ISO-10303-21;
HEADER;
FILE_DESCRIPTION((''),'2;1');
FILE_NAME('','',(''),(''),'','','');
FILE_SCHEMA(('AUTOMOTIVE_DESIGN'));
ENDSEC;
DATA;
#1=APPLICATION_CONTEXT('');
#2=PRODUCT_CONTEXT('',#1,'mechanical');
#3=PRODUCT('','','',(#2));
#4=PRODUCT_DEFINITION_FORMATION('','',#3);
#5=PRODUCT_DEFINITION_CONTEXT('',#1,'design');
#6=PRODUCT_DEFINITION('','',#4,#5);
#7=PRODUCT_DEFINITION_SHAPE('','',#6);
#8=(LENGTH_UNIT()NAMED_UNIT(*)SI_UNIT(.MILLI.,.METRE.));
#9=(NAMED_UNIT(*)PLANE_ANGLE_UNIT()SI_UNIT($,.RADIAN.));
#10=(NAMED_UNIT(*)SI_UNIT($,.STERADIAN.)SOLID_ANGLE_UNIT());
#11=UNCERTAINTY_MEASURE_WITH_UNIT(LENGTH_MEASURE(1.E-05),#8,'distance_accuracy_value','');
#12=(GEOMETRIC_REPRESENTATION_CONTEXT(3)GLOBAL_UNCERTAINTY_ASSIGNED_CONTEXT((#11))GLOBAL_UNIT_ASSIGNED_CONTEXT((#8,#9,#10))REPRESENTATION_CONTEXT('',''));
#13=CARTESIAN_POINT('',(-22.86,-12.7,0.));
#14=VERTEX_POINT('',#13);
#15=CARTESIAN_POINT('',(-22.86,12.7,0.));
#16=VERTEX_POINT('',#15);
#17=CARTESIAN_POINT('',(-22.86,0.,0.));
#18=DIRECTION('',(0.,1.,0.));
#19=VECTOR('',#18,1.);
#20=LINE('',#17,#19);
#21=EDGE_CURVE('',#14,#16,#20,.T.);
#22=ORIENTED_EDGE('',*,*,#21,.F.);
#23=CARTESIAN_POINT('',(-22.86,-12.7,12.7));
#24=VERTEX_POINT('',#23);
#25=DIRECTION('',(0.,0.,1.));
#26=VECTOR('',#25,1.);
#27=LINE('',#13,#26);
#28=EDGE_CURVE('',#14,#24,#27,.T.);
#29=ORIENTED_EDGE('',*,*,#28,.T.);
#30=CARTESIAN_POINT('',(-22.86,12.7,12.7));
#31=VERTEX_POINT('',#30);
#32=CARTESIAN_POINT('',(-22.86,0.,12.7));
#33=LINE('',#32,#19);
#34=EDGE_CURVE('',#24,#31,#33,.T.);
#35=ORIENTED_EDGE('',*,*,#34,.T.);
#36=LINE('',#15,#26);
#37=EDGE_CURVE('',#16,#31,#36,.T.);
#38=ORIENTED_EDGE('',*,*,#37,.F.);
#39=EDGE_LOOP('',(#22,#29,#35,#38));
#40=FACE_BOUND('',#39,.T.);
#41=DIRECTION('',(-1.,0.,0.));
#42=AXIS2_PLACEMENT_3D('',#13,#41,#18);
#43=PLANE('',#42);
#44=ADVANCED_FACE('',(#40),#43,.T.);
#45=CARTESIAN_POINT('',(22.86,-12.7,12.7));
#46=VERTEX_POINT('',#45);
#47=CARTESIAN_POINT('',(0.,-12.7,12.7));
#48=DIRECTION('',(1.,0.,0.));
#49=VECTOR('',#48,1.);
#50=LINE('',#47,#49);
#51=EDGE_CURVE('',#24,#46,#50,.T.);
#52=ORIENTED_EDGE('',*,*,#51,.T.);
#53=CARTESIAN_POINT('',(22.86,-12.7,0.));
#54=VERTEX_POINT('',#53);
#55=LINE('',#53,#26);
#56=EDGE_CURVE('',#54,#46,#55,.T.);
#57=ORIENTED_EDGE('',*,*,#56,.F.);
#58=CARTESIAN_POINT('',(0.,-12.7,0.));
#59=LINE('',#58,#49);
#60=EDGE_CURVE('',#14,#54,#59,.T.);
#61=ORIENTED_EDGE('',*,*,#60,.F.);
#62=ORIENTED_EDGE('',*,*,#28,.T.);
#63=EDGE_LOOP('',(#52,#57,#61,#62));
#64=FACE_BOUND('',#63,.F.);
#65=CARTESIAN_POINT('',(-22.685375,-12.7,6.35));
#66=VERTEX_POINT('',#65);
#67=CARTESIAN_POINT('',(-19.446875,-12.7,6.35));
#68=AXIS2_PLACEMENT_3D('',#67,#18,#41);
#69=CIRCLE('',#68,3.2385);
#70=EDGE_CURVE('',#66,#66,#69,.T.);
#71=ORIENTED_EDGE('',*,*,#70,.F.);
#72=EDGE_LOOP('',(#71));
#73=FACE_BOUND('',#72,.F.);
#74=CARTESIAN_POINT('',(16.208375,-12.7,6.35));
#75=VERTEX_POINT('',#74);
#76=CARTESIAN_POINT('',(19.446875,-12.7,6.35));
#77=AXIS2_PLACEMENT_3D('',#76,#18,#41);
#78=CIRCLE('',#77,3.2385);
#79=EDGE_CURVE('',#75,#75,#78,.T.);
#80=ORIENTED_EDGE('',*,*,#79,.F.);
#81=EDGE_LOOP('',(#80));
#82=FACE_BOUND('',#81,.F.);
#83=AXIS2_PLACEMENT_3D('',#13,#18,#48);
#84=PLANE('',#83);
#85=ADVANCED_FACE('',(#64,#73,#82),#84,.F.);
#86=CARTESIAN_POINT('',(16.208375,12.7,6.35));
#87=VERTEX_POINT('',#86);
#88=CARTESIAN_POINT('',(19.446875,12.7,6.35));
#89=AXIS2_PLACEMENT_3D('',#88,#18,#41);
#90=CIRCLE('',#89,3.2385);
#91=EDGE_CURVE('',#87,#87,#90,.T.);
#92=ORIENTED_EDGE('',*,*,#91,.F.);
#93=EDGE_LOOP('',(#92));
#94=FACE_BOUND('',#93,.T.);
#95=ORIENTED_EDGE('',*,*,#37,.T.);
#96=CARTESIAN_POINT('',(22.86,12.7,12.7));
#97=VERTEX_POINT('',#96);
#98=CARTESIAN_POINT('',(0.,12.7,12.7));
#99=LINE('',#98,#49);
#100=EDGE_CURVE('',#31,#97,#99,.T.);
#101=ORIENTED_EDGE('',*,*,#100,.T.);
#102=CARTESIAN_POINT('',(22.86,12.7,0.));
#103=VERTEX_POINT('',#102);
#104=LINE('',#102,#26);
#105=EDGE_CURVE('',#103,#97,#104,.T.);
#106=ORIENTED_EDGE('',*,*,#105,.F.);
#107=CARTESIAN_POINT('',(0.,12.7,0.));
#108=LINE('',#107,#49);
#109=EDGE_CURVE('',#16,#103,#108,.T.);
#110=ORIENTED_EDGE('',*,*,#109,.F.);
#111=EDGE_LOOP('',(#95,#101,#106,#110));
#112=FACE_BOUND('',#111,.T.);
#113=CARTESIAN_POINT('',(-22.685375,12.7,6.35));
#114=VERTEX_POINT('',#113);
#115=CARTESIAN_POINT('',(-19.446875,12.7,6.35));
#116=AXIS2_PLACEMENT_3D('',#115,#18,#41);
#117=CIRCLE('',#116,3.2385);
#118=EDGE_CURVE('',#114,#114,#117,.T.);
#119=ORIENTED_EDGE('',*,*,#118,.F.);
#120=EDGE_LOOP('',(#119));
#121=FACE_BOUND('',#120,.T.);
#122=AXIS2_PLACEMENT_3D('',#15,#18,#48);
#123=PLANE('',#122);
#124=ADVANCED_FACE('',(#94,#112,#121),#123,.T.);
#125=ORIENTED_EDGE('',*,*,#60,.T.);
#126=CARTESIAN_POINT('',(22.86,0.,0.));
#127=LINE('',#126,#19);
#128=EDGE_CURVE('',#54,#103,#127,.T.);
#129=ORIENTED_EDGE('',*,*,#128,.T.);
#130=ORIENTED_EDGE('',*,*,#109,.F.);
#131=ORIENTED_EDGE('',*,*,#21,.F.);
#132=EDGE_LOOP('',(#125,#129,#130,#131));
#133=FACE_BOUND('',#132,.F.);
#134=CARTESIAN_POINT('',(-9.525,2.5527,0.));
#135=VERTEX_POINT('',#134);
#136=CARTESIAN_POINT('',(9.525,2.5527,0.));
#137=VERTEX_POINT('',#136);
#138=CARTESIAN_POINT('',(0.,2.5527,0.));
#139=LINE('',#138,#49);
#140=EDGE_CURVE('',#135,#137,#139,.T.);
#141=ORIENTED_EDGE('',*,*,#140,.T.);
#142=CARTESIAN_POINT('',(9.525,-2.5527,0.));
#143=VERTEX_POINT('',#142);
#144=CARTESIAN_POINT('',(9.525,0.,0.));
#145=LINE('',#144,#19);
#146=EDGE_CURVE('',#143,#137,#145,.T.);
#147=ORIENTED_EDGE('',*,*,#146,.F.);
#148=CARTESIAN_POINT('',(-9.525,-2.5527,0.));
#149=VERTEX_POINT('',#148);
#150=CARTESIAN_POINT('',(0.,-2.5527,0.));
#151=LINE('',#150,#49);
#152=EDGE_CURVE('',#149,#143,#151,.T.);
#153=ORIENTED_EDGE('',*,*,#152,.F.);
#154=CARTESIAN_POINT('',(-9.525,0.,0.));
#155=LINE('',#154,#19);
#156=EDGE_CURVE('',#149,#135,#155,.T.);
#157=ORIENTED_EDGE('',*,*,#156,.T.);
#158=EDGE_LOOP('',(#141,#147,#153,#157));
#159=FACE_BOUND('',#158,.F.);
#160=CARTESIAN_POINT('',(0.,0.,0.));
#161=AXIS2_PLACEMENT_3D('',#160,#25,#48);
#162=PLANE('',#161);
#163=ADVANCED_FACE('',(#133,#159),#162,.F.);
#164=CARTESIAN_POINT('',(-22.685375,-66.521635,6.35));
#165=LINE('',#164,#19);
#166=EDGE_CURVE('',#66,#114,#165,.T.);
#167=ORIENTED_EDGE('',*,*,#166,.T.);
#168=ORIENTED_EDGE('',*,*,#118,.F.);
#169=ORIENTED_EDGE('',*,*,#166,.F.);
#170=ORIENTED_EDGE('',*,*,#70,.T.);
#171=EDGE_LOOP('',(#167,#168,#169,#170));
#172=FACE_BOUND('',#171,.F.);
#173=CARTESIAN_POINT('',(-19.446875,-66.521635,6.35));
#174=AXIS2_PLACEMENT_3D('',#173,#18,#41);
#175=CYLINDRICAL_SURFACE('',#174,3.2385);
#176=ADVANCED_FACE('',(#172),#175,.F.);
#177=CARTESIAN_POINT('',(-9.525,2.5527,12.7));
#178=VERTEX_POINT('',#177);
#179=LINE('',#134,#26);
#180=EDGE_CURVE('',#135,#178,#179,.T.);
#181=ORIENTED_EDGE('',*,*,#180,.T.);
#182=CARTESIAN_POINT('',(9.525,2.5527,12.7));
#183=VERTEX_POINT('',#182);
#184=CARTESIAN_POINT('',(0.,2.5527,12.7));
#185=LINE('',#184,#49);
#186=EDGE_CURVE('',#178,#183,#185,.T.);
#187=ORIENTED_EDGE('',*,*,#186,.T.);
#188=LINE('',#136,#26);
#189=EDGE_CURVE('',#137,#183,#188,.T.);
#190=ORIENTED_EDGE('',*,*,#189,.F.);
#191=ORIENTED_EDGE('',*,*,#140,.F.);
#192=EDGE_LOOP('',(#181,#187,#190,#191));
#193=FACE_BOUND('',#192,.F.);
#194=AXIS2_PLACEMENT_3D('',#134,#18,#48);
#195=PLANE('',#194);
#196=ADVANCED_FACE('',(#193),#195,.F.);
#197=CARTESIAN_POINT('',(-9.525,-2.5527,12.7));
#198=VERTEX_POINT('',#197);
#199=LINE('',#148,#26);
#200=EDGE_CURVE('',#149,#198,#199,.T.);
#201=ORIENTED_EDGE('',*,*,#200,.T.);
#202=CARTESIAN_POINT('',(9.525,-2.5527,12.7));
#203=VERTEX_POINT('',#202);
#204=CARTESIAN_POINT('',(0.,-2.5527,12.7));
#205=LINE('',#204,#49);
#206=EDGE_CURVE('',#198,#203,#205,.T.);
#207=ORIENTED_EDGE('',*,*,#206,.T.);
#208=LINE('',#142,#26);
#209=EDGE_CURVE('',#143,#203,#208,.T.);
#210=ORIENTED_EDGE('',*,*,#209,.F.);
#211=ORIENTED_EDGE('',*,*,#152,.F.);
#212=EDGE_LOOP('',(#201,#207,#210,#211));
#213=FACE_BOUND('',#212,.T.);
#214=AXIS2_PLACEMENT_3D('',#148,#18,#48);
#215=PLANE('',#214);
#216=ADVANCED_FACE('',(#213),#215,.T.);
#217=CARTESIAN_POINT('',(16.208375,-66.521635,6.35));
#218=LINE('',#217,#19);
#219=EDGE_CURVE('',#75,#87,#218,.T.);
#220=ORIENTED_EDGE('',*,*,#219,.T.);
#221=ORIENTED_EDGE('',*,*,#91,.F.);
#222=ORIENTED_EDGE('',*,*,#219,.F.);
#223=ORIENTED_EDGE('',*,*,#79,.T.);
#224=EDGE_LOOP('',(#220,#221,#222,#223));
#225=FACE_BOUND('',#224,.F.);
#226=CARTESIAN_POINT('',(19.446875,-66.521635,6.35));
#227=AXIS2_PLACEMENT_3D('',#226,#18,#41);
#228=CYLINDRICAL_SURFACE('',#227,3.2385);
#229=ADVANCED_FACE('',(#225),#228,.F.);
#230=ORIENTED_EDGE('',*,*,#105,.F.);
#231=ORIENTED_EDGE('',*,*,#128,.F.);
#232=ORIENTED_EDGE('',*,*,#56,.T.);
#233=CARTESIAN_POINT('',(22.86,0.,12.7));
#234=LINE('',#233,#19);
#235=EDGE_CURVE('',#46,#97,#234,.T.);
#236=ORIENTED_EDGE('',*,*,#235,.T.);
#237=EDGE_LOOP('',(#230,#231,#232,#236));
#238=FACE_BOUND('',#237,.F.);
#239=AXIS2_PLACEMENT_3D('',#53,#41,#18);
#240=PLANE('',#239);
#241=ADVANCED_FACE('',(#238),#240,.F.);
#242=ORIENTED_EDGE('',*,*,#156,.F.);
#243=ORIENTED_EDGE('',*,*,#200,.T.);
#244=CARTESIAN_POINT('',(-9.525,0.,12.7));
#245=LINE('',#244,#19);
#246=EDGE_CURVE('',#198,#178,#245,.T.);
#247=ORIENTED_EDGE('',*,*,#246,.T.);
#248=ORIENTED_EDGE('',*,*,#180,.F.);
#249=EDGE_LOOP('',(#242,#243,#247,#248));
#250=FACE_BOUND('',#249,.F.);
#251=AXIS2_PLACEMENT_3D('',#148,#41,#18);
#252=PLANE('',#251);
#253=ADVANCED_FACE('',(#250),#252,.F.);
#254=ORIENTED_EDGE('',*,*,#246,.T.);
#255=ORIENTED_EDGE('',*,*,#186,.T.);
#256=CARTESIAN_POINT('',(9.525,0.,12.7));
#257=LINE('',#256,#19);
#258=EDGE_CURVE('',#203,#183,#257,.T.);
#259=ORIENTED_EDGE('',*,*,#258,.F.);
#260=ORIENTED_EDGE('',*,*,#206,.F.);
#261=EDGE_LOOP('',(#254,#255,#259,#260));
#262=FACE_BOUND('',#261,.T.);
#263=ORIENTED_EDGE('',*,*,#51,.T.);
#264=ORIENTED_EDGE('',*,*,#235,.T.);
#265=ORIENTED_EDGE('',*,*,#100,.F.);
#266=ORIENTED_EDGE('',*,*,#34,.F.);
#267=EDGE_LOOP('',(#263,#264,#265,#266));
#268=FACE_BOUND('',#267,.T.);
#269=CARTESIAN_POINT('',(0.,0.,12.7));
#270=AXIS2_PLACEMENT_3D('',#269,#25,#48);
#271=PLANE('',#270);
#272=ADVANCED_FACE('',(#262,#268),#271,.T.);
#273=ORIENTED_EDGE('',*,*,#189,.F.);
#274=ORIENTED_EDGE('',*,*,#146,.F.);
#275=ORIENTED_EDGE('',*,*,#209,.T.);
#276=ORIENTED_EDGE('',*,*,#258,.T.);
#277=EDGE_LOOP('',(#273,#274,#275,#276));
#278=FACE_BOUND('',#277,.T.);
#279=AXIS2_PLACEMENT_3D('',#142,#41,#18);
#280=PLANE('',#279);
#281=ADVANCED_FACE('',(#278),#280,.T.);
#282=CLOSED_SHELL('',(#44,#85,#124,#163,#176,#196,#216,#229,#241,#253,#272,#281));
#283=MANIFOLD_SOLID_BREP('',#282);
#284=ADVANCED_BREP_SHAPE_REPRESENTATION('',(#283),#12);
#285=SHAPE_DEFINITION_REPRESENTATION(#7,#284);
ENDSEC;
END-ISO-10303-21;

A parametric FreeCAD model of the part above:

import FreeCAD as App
import Part
import Sketcher
from FreeCAD import Vector
Q = App.Units.Quantity

doc = App.newDocument("Part")
body = doc.addObject("PartDesign::Body", "Body")

# Sketch on XY plane
sketch1 = body.newObject("Sketcher::SketchObject", "Sketch")
sketch1.AttachmentSupport = (doc.getObject("XY_Plane"), [""])
sketch1.MapMode = "FlatFace"
sketch1.addGeometry([
    Part.LineSegment(Vector(-22.86, 12.7, 0), Vector(-22.86, -12.7, 0)),  # 0
    Part.LineSegment(Vector(-22.86, -12.7, 0), Vector(22.86, -12.7, 0)),  # 1
    Part.LineSegment(Vector(22.86, -12.7, 0), Vector(22.86, 12.7, 0)),  # 2
    Part.LineSegment(Vector(22.86, 12.7, 0), Vector(-22.86, 12.7, 0)),  # 3
    Part.LineSegment(Vector(9.525, -2.5527, 0), Vector(-9.525, -2.5527, 0)),  # 4
    Part.LineSegment(Vector(-9.525, -2.5527, 0), Vector(-9.525, 2.5527, 0)),  # 5
    Part.LineSegment(Vector(-9.525, 2.5527, 0), Vector(9.525, 2.5527, 0)),  # 6
    Part.LineSegment(Vector(9.525, 2.5527, 0), Vector(9.525, -2.5527, 0)),  # 7
], False)
sketch1.addConstraint([
    Sketcher.Constraint("Coincident", 0, 2, 1, 1),
    Sketcher.Constraint("Coincident", 1, 2, 2, 1),
    Sketcher.Constraint("Coincident", 2, 2, 3, 1),
    Sketcher.Constraint("Coincident", 3, 2, 0, 1),
    Sketcher.Constraint("Coincident", 4, 2, 5, 1),
    Sketcher.Constraint("Coincident", 5, 2, 6, 1),
    Sketcher.Constraint("Coincident", 6, 2, 7, 1),
    Sketcher.Constraint("Coincident", 7, 2, 4, 1),
    Sketcher.Constraint("Vertical", 0),
    Sketcher.Constraint("Horizontal", 1),
    Sketcher.Constraint("Vertical", 2),
    Sketcher.Constraint("Horizontal", 3),
    Sketcher.Constraint("Horizontal", 4),
    Sketcher.Constraint("Vertical", 5),
    Sketcher.Constraint("Horizontal", 6),
    Sketcher.Constraint("Vertical", 7),
    Sketcher.Constraint("Symmetric", 0, 2, 2, 2, -1, 1),
    Sketcher.Constraint("Symmetric", 4, 2, 6, 2, -1, 1),
    Sketcher.Constraint("DistanceY", 0, 2, 0, 1, Q("1 in")),
    Sketcher.Constraint("DistanceX", 1, 1, 1, 2, Q("1.8 in")),
    Sketcher.Constraint("DistanceX", 4, 2, 4, 1, Q("0.75 in")),
    Sketcher.Constraint("DistanceY", 5, 1, 5, 2, Q("0.201 in")),
])
pad1 = body.newObject("PartDesign::Pad", "Pad")
pad1.Profile = sketch1
pad1.Length = Q("0.5 in")

# Sketch on XZ plane
sketch2 = body.newObject("Sketcher::SketchObject", "Sketch001")
sketch2.AttachmentSupport = (doc.getObject("XZ_Plane"), [""])
sketch2.MapMode = "FlatFace"
sketch2.AttachmentOffset = App.Placement(Vector(0, 0, 0.5 * 25.4), App.Rotation())
sketch2.addGeometry([
    Part.Circle(Vector(-19.446875, 6.35, 0), Vector(0, 0, 1), 3.2385),
    Part.Circle(Vector(19.446875, 6.35, 0), Vector(0, 0, 1), 3.2385),
], False)
sketch2.addConstraint([
    Sketcher.Constraint("Equal", 0, 1),
    Sketcher.Constraint("Symmetric", 0, 3, 1, 3, -2),
    Sketcher.Constraint("Diameter", 0, Q("0.255 in")),
    Sketcher.Constraint("DistanceY", -1, 1, 0, 3, Q("0.25 in")),
    Sketcher.Constraint("DistanceX", 0, 3, -1, 1, Q("0.765625 in")),
])
doc.recompute()
hole = body.newObject("PartDesign::Hole", "Hole")
hole.Profile = sketch2
hole.ThreadType = "None"
hole.Diameter = Q("0.255 in")
hole.DepthType = "ThroughAll"

doc.recompute()
